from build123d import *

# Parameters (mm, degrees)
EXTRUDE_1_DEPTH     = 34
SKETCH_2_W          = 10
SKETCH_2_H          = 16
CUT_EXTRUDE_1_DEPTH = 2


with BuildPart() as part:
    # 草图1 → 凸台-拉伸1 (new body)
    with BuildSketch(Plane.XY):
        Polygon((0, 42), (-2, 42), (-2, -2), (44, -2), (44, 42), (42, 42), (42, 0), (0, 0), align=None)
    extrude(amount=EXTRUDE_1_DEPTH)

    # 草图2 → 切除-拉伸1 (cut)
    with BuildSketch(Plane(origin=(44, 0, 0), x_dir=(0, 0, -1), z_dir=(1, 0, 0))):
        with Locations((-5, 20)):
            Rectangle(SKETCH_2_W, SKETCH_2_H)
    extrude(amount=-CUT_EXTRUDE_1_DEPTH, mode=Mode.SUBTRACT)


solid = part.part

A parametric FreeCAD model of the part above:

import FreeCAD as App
import Part
import Sketcher
Q = App.Units.Quantity


def add_polygon(sketch, points):
    """Adds a closed chain of lines whose ends are joined by coincident constraints."""
    first, n = sketch.GeometryCount, len(points)
    for a, b in zip(points, points[1:] + points[:1]):
        sketch.addGeometry(Part.LineSegment(App.Vector(*a, 0), App.Vector(*b, 0)), False)
    for i in range(n):
        sketch.addConstraint(Sketcher.Constraint("Coincident", first + i, 2, first + (i + 1) % n, 1))

doc = App.newDocument("Part")
body = doc.addObject("PartDesign::Body", "Body")

# Sketch on XY plane
sketch1 = body.newObject("Sketcher::SketchObject", "Sketch")
sketch1.AttachmentSupport = (doc.getObject("XY_Plane"), [""])
sketch1.MapMode = "FlatFace"
add_polygon(sketch1, [(0, 42), (-2, 42), (-2, -2), (44, -2), (44, 42), (42, 42), (42, 0), (0, 0)])  # lines 0-7
sketch1.addConstraint([
    Sketcher.Constraint("Horizontal", 0),
    Sketcher.Constraint("Vertical", 1),
    Sketcher.Constraint("Horizontal", 2),
    Sketcher.Constraint("Vertical", 3),
    Sketcher.Constraint("Horizontal", 4),
    Sketcher.Constraint("Vertical", 5),
    Sketcher.Constraint("Horizontal", 6),
    Sketcher.Constraint("Vertical", 7),
    Sketcher.Constraint("Coincident", 6, 2, -1, 1),
    Sketcher.Constraint("Horizontal", 0, 2, 3, 2),
    Sketcher.Constraint("Equal", 0, 4),
    Sketcher.Constraint("Equal", 6, 5),
    Sketcher.Constraint("DistanceX", 0, 2, 0, 1, Q("2 mm")),
    Sketcher.Constraint("DistanceX", 2, 1, 2, 2, Q("46 mm")),
    Sketcher.Constraint("DistanceY", 1, 2, 1, 1, Q("44 mm")),
])
pad1 = body.newObject("PartDesign::Pad", "Pad")
pad1.Profile = sketch1
pad1.Length = 34

# Sketch on YZ plane
sketch2 = body.newObject("Sketcher::SketchObject", "Sketch001")
sketch2.AttachmentSupport = (doc.getObject("YZ_Plane"), [""])
sketch2.MapMode = "FlatFace"
sketch2.AttachmentOffset = App.Placement(App.Vector(0, 0, 44), App.Rotation())
add_polygon(sketch2, [(28, 10), (12, 10), (12, 0), (28, 0)])  # lines 0-3
sketch2.addConstraint([
    Sketcher.Constraint("Horizontal", 0),
    Sketcher.Constraint("Vertical", 1),
    Sketcher.Constraint("Horizontal", 2),
    Sketcher.Constraint("Vertical", 3),
    Sketcher.Constraint("PointOnObject", 1, 2, -1),
    Sketcher.Constraint("DistanceX", 0, 2, 0, 1, Q("16 mm")),
    Sketcher.Constraint("DistanceY", 1, 2, 1, 1, Q("10 mm")),
    Sketcher.Constraint("DistanceX", -1, 1, 0, 2, Q("12 mm")),
])
pocket1 = body.newObject("PartDesign::Pocket", "Pocket")
pocket1.Profile = sketch2
pocket1.Length = 2

doc.recompute()
